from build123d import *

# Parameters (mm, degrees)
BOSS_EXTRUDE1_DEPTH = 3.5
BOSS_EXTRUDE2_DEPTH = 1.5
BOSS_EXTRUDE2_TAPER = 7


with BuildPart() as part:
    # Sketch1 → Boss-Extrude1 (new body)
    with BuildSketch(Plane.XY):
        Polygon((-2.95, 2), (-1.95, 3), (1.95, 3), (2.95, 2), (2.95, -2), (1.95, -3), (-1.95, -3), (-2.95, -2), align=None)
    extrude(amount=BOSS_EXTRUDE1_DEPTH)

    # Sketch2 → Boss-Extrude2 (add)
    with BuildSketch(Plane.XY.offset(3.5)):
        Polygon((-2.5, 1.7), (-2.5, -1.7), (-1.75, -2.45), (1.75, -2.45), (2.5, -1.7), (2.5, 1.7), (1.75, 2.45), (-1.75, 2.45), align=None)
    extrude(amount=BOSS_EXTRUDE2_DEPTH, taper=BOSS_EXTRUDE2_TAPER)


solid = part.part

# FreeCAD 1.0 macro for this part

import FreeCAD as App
import Part
import Sketcher
Q = App.Units.Quantity

doc = App.newDocument("Part")
body = doc.addObject("PartDesign::Body", "Body")

sketch1 = doc.addObject("Sketcher::SketchObject", "Sketch")
body.addObject(sketch1)
sketch1.AttachmentSupport = (doc.XY_Plane, [""])
sketch1.MapMode = "FlatFace"
sketch1.addGeometry(Part.LineSegment(App.Vector(-1.9, 3, 0), App.Vector(-3, 2, 0)), False)
sketch1.addGeometry(Part.LineSegment(App.Vector(-3, 2, 0), App.Vector(-3, -2, 0)), False)
sketch1.addGeometry(Part.LineSegment(App.Vector(-3, -2, 0), App.Vector(-1.9, -3, 0)), False)
sketch1.addGeometry(Part.LineSegment(App.Vector(-1.9, -3, 0), App.Vector(1.9, -3, 0)), False)
sketch1.addGeometry(Part.LineSegment(App.Vector(1.9, -3, 0), App.Vector(3, -2, 0)), False)
sketch1.addGeometry(Part.LineSegment(App.Vector(3, -2, 0), App.Vector(3, 2, 0)), False)
sketch1.addGeometry(Part.LineSegment(App.Vector(3, 2, 0), App.Vector(1.9, 3, 0)), False)
sketch1.addGeometry(Part.LineSegment(App.Vector(1.9, 3, 0), App.Vector(-1.9, 3, 0)), False)
sketch1.addConstraint(Sketcher.Constraint("Coincident", 0, 2, 1, 1))
sketch1.addConstraint(Sketcher.Constraint("Coincident", 1, 2, 2, 1))
sketch1.addConstraint(Sketcher.Constraint("Coincident", 2, 2, 3, 1))
sketch1.addConstraint(Sketcher.Constraint("Coincident", 3, 2, 4, 1))
sketch1.addConstraint(Sketcher.Constraint("Coincident", 4, 2, 5, 1))
sketch1.addConstraint(Sketcher.Constraint("Coincident", 5, 2, 6, 1))
sketch1.addConstraint(Sketcher.Constraint("Coincident", 6, 2, 7, 1))
sketch1.addConstraint(Sketcher.Constraint("Coincident", 7, 2, 0, 1))
sketch1.addConstraint(Sketcher.Constraint("Vertical", 1))
sketch1.addConstraint(Sketcher.Constraint("Horizontal", 3))
sketch1.addConstraint(Sketcher.Constraint("Vertical", 5))
sketch1.addConstraint(Sketcher.Constraint("Horizontal", 7))
sketch1.addConstraint(Sketcher.Constraint("Symmetric", 0, 2, 4, 2, -1, 1))
sketch1.addConstraint(Sketcher.Constraint("Symmetric", 2, 2, 6, 2, -1, 1))
sketch1.addConstraint(Sketcher.Constraint("Perpendicular", 0, 2))
sketch1.addConstraint(Sketcher.Constraint("Perpendicular", 2, 4))
sketch1.addConstraint(Sketcher.Constraint("Perpendicular", 4, 6))
sketch1.addConstraint(Sketcher.Constraint("Horizontal", 1, 2, 4, 2))
sketch1.addConstraint(Sketcher.Constraint("Vertical", 3, 2, 6, 2))
sketch1.addConstraint(Sketcher.Constraint("DistanceY", 1, 2, 1, 1, Q("4 mm")))
sketch1.addConstraint(Sketcher.Constraint("DistanceX", 3, 1, 3, 2, Q("3.9 mm")))
sketch1.addConstraint(Sketcher.Constraint("DistanceY", 2, 2, -1, 1, Q("3 mm")))
pad1 = doc.addObject("PartDesign::Pad", "Pad")
body.addObject(pad1)
pad1.Profile = sketch1
pad1.Length = 3.5

sketch2 = doc.addObject("Sketcher::SketchObject", "Sketch001")
body.addObject(sketch2)
sketch2.AttachmentSupport = (doc.XY_Plane, [""])
sketch2.MapMode = "FlatFace"
sketch2.AttachmentOffset = App.Placement(App.Vector(0, 0, 3.5), App.Rotation())
sketch2.addGeometry(Part.LineSegment(App.Vector(-2.5, 1.7, 0), App.Vector(-2.5, -1.7, 0)), False)
sketch2.addGeometry(Part.LineSegment(App.Vector(-2.5, -1.7, 0), App.Vector(-1.8, -2.5, 0)), False)
sketch2.addGeometry(Part.LineSegment(App.Vector(-1.8, -2.5, 0), App.Vector(1.8, -2.5, 0)), False)
sketch2.addGeometry(Part.LineSegment(App.Vector(1.8, -2.5, 0), App.Vector(2.5, -1.7, 0)), False)
sketch2.addGeometry(Part.LineSegment(App.Vector(2.5, -1.7, 0), App.Vector(2.5, 1.7, 0)), False)
sketch2.addGeometry(Part.LineSegment(App.Vector(2.5, 1.7, 0), App.Vector(1.8, 2.5, 0)), False)
sketch2.addGeometry(Part.LineSegment(App.Vector(1.8, 2.5, 0), App.Vector(-1.8, 2.5, 0)), False)
sketch2.addGeometry(Part.LineSegment(App.Vector(-1.8, 2.5, 0), App.Vector(-2.5, 1.7, 0)), False)
sketch2.addConstraint(Sketcher.Constraint("Coincident", 0, 2, 1, 1))
sketch2.addConstraint(Sketcher.Constraint("Coincident", 1, 2, 2, 1))
sketch2.addConstraint(Sketcher.Constraint("Coincident", 2, 2, 3, 1))
sketch2.addConstraint(Sketcher.Constraint("Coincident", 3, 2, 4, 1))
sketch2.addConstraint(Sketcher.Constraint("Coincident", 4, 2, 5, 1))
sketch2.addConstraint(Sketcher.Constraint("Coincident", 5, 2, 6, 1))
sketch2.addConstraint(Sketcher.Constraint("Coincident", 6, 2, 7, 1))
sketch2.addConstraint(Sketcher.Constraint("Coincident", 7, 2, 0, 1))
sketch2.addConstraint(Sketcher.Constraint("Vertical", 0))
sketch2.addConstraint(Sketcher.Constraint("Horizontal", 2))
sketch2.addConstraint(Sketcher.Constraint("Vertical", 4))
sketch2.addConstraint(Sketcher.Constraint("Horizontal", 6))
sketch2.addConstraint(Sketcher.Constraint("Symmetric", 0, 2, 4, 2, -1, 1))
sketch2.addConstraint(Sketcher.Constraint("Symmetric", 1, 2, 5, 2, -1, 1))
sketch2.addConstraint(Sketcher.Constraint("Perpendicular", 1, 3))
sketch2.addConstraint(Sketcher.Constraint("Perpendicular", 5, 7))
sketch2.addConstraint(Sketcher.Constraint("Horizontal", 0, 2, 3, 2))
sketch2.addConstraint(Sketcher.Constraint("Horizontal", 4, 2, 7, 2))
sketch2.addConstraint(Sketcher.Constraint("Vertical", 2, 2, 5, 2))
sketch2.addConstraint(Sketcher.Constraint("DistanceX", 2, 1, 2, 2, Q("3.5 mm")))
sketch2.addConstraint(Sketcher.Constraint("DistanceY", 0, 2, 0, 1, Q("3.4 mm")))
sketch2.addConstraint(Sketcher.Constraint("DistanceX", 0, 2, 3, 2, Q("5 mm")))
pad2 = doc.addObject("PartDesign::Pad", "Pad001")
body.addObject(pad2)
pad2.Profile = sketch2
pad2.Length = 1.5
pad2.TaperAngle = -7

doc.recompute()
